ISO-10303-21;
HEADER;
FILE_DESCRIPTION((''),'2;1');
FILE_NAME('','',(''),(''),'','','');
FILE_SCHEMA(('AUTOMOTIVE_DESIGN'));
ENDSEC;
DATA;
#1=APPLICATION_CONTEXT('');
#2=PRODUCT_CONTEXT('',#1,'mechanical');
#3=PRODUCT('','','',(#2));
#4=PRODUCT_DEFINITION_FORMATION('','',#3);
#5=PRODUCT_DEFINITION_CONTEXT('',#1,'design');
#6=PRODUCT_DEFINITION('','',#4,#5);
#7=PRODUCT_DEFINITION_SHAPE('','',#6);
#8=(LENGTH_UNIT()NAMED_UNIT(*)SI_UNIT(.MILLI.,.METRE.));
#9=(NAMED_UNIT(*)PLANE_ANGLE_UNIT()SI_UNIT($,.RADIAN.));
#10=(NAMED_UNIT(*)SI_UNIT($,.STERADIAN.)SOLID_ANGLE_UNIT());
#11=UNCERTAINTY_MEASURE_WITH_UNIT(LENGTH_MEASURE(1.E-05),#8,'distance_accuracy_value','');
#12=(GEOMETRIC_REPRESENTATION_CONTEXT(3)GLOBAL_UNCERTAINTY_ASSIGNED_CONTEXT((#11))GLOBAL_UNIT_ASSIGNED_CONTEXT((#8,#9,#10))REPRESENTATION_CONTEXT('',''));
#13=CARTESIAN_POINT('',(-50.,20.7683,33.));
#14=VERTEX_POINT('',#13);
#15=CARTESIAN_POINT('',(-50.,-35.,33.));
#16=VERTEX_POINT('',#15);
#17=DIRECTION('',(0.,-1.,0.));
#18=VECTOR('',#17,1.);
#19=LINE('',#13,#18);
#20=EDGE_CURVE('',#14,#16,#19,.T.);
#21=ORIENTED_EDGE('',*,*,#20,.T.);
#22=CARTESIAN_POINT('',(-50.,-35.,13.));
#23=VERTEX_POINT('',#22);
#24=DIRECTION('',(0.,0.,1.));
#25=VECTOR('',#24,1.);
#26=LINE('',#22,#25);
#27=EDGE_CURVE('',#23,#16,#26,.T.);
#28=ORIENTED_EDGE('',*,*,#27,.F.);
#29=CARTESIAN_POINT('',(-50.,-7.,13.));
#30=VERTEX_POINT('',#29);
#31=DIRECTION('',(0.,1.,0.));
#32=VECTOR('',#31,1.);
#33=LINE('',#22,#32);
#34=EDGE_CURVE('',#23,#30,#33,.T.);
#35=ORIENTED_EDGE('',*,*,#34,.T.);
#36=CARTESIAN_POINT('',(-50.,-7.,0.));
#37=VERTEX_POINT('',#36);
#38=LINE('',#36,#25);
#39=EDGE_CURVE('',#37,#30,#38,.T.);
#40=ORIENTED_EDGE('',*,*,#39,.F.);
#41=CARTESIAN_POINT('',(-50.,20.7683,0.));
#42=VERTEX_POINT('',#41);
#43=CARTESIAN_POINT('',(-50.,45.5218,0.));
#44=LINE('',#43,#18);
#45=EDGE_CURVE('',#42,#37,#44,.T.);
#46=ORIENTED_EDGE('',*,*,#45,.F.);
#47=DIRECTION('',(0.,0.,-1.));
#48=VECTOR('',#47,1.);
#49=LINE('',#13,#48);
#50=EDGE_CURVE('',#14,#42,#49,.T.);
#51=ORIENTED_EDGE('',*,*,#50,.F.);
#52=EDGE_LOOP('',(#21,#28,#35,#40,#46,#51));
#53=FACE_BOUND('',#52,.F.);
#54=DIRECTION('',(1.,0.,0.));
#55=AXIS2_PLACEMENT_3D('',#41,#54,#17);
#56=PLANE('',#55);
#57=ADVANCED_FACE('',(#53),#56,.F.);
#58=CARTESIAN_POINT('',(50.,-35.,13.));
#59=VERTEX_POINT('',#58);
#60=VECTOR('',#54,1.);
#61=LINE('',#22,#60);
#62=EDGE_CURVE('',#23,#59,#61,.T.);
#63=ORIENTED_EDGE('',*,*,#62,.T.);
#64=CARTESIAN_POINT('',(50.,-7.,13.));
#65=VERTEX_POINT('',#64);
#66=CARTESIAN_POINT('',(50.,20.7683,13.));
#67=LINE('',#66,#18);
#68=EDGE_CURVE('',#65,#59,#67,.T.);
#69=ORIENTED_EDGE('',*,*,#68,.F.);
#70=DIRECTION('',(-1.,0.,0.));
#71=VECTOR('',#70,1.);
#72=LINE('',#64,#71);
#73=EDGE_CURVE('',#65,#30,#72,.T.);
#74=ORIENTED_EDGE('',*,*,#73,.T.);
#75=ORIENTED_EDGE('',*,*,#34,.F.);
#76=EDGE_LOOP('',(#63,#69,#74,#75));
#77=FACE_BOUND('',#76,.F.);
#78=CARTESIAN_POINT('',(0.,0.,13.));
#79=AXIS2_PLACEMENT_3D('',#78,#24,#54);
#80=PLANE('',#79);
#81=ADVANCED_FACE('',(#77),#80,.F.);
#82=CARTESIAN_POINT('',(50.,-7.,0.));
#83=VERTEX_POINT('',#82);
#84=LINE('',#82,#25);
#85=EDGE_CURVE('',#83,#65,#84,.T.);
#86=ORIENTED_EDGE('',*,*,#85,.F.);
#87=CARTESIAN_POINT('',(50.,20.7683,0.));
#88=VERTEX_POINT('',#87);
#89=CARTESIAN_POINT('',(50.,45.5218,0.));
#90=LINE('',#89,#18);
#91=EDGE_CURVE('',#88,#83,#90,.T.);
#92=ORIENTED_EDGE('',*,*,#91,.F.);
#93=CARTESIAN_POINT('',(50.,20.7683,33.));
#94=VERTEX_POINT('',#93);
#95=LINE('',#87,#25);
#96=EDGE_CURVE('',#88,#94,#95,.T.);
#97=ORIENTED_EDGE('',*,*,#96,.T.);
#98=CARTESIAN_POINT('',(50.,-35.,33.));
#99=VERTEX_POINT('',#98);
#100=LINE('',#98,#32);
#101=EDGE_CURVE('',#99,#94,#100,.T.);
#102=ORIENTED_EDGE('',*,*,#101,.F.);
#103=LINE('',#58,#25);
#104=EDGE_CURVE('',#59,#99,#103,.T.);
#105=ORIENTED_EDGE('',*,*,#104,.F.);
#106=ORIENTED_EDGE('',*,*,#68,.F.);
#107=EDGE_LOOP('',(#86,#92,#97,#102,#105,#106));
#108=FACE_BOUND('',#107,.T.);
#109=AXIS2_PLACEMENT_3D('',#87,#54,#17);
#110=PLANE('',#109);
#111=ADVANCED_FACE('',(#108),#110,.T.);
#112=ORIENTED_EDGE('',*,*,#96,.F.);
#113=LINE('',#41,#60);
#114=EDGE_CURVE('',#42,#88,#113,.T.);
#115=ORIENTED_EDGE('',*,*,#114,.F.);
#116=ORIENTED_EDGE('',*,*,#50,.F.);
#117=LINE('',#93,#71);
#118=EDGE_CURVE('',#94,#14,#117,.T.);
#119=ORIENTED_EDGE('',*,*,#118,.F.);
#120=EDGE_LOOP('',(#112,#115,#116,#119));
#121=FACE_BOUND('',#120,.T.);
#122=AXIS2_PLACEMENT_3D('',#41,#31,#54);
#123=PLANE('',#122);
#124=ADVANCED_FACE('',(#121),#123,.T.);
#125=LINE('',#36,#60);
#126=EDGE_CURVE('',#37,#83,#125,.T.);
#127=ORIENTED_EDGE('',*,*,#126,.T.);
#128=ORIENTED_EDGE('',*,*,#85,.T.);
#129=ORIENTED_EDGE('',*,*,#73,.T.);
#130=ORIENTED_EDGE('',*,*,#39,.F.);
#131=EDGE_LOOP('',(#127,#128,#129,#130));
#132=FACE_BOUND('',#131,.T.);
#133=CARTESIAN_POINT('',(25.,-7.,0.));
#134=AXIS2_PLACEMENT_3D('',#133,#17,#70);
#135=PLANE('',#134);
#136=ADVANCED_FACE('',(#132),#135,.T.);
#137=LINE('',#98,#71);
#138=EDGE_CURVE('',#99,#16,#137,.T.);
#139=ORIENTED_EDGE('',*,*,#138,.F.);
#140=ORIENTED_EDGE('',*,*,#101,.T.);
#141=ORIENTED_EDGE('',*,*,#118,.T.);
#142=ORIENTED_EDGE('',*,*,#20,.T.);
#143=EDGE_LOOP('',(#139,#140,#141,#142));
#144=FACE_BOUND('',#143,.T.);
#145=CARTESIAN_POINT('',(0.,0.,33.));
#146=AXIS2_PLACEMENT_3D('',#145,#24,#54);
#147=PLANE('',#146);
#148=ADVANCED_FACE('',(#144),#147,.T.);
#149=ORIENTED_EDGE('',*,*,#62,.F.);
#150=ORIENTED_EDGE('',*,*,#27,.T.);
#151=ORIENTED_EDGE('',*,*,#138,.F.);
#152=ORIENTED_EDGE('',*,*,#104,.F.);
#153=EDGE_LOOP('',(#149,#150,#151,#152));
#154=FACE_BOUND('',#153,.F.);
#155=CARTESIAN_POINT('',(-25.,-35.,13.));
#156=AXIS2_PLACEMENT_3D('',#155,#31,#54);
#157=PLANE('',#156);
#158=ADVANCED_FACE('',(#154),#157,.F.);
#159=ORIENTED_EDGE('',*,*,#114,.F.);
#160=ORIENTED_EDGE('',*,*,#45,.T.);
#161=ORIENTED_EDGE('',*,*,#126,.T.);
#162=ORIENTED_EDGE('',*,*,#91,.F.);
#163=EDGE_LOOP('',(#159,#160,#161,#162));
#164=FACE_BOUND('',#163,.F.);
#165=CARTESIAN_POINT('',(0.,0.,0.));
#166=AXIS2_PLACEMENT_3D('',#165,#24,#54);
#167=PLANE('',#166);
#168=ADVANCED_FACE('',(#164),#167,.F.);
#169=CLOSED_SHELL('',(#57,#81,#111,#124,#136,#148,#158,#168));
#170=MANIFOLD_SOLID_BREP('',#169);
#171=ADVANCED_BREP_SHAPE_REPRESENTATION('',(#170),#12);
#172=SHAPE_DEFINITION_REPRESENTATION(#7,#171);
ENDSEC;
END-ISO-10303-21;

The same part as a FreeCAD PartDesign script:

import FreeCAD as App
import Part
import Sketcher
from FreeCAD import Vector
Q = App.Units.Quantity


def add_polygon(sketch, points):
    """Adds a closed chain of lines whose ends are joined by coincident constraints."""
    first, n = sketch.GeometryCount, len(points)
    for a, b in zip(points, points[1:] + points[:1]):
        sketch.addGeometry(Part.LineSegment(App.Vector(*a, 0), App.Vector(*b, 0)), False)
    for i in range(n):
        sketch.addConstraint(Sketcher.Constraint("Coincident", first + i, 2, first + (i + 1) % n, 1))

doc = App.newDocument("Part")
body = doc.addObject("PartDesign::Body", "Body")

sketch1 = body.newObject("Sketcher::SketchObject", "Sketch")
sketch1.AttachmentSupport = (doc.getObject("XY_Plane"), [""])
sketch1.MapMode = "FlatFace"
add_polygon(sketch1, [(-50, -7), (50, -7), (50, 21), (-50, 21)])
sketch1.addConstraint(Sketcher.Constraint("Horizontal", 0))
sketch1.addConstraint(Sketcher.Constraint("Vertical", 1))
sketch1.addConstraint(Sketcher.Constraint("Horizontal", 2))
sketch1.addConstraint(Sketcher.Constraint("Vertical", 3))
sketch1.addConstraint(Sketcher.Constraint("DistanceX", 0, 1, 0, 2, Q("3.937 in")))
sketch1.addConstraint(Sketcher.Constraint("DistanceY", 1, 1, 1, 2, 27.7683))
sketch1.addConstraint(Sketcher.Constraint("DistanceX", -1, 1, 0, 2, Q("1.9685 in")))
sketch1.addConstraint(Sketcher.Constraint("DistanceY", 0, 2, -1, 1, Q("0.2756 in")))
pad1 = body.newObject("PartDesign::Pad", "Pad")
pad1.Profile = sketch1
pad1.Length = Q("0.511811 in")

sketch2 = body.newObject("Sketcher::SketchObject", "Sketch001")
sketch2.AttachmentSupport = (doc.getObject("XY_Plane"), [""])
sketch2.MapMode = "FlatFace"
sketch2.AttachmentOffset = App.Placement(Vector(0, 0, 0.511811 * 25.4), App.Rotation())
add_polygon(sketch2, [(50, -35), (50, 21), (-50, 21), (-50, -35)])
sketch2.addConstraint(Sketcher.Constraint("Vertical", 0))
sketch2.addConstraint(Sketcher.Constraint("Horizontal", 1))
sketch2.addConstraint(Sketcher.Constraint("Vertical", 2))
sketch2.addConstraint(Sketcher.Constraint("Horizontal", 3))
sketch2.addConstraint(Sketcher.Constraint("DistanceX", 1, 2, 1, 1, Q("3.937 in")))
sketch2.addConstraint(Sketcher.Constraint("DistanceY", 0, 1, 0, 2, Q("2.1956 in")))
sketch2.addConstraint(Sketcher.Constraint("DistanceX", -1, 1, 0, 2, Q("1.9685 in")))
sketch2.addConstraint(Sketcher.Constraint("DistanceY", -1, 1, 0, 2, 20.7683))
pad2 = body.newObject("PartDesign::Pad", "Pad001")
pad2.Profile = sketch2
pad2.Length = Q("0.7874016 in")

doc.recompute()
